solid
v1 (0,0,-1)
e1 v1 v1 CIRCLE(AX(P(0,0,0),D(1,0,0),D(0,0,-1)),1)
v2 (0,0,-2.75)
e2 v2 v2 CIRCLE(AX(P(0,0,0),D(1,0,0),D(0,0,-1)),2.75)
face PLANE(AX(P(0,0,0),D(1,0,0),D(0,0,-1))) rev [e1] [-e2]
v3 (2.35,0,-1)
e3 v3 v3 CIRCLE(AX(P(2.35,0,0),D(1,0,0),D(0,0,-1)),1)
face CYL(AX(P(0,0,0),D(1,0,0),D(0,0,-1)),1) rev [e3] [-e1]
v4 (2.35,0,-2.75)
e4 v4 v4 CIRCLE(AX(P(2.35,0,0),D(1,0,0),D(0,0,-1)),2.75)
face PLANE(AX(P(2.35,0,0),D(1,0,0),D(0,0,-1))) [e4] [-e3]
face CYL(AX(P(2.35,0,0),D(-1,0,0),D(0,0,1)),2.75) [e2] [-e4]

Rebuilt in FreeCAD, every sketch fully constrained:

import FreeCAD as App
import Part
import Sketcher
from FreeCAD import Vector

doc = App.newDocument("Part")
body = doc.addObject("PartDesign::Body", "Body")

# Sketch on YZ plane
sketch1 = doc.addObject("Sketcher::SketchObject", "Sketch")
body.addObject(sketch1)
sketch1.AttachmentSupport = (doc.YZ_Plane, [""])
sketch1.MapMode = "FlatFace"
sketch1.addGeometry(Part.Circle(Vector(0, 0, 0), Vector(0, 0, 1), 2.8), False)
sketch1.addConstraint([
    Sketcher.Constraint("Coincident", 0, 3, -1, 1),
    Sketcher.Constraint("Diameter", 0, 5.5),
])
pad1 = doc.addObject("PartDesign::Pad", "Pad")
body.addObject(pad1)
pad1.Profile = sketch1
pad1.Length = 2.35

# Sketch on YZ plane
sketch2 = doc.addObject("Sketcher::SketchObject", "Sketch001")
body.addObject(sketch2)
sketch2.AttachmentSupport = (doc.YZ_Plane, [""])
sketch2.MapMode = "FlatFace"
sketch2.AttachmentOffset = App.Placement(Vector(0, 0, 2.35), App.Rotation())
sketch2.addGeometry(Part.Circle(Vector(0, 0, 0), Vector(0, 0, 1), 1), False)
sketch2.addConstraint([
    Sketcher.Constraint("Coincident", 0, 3, -1, 1),
    Sketcher.Constraint("Diameter", 0, 2.0),
])
pocket1 = doc.addObject("PartDesign::Pocket", "Pocket")
body.addObject(pocket1)
pocket1.Profile = sketch2
pocket1.Type = "ThroughAll"

doc.recompute()
